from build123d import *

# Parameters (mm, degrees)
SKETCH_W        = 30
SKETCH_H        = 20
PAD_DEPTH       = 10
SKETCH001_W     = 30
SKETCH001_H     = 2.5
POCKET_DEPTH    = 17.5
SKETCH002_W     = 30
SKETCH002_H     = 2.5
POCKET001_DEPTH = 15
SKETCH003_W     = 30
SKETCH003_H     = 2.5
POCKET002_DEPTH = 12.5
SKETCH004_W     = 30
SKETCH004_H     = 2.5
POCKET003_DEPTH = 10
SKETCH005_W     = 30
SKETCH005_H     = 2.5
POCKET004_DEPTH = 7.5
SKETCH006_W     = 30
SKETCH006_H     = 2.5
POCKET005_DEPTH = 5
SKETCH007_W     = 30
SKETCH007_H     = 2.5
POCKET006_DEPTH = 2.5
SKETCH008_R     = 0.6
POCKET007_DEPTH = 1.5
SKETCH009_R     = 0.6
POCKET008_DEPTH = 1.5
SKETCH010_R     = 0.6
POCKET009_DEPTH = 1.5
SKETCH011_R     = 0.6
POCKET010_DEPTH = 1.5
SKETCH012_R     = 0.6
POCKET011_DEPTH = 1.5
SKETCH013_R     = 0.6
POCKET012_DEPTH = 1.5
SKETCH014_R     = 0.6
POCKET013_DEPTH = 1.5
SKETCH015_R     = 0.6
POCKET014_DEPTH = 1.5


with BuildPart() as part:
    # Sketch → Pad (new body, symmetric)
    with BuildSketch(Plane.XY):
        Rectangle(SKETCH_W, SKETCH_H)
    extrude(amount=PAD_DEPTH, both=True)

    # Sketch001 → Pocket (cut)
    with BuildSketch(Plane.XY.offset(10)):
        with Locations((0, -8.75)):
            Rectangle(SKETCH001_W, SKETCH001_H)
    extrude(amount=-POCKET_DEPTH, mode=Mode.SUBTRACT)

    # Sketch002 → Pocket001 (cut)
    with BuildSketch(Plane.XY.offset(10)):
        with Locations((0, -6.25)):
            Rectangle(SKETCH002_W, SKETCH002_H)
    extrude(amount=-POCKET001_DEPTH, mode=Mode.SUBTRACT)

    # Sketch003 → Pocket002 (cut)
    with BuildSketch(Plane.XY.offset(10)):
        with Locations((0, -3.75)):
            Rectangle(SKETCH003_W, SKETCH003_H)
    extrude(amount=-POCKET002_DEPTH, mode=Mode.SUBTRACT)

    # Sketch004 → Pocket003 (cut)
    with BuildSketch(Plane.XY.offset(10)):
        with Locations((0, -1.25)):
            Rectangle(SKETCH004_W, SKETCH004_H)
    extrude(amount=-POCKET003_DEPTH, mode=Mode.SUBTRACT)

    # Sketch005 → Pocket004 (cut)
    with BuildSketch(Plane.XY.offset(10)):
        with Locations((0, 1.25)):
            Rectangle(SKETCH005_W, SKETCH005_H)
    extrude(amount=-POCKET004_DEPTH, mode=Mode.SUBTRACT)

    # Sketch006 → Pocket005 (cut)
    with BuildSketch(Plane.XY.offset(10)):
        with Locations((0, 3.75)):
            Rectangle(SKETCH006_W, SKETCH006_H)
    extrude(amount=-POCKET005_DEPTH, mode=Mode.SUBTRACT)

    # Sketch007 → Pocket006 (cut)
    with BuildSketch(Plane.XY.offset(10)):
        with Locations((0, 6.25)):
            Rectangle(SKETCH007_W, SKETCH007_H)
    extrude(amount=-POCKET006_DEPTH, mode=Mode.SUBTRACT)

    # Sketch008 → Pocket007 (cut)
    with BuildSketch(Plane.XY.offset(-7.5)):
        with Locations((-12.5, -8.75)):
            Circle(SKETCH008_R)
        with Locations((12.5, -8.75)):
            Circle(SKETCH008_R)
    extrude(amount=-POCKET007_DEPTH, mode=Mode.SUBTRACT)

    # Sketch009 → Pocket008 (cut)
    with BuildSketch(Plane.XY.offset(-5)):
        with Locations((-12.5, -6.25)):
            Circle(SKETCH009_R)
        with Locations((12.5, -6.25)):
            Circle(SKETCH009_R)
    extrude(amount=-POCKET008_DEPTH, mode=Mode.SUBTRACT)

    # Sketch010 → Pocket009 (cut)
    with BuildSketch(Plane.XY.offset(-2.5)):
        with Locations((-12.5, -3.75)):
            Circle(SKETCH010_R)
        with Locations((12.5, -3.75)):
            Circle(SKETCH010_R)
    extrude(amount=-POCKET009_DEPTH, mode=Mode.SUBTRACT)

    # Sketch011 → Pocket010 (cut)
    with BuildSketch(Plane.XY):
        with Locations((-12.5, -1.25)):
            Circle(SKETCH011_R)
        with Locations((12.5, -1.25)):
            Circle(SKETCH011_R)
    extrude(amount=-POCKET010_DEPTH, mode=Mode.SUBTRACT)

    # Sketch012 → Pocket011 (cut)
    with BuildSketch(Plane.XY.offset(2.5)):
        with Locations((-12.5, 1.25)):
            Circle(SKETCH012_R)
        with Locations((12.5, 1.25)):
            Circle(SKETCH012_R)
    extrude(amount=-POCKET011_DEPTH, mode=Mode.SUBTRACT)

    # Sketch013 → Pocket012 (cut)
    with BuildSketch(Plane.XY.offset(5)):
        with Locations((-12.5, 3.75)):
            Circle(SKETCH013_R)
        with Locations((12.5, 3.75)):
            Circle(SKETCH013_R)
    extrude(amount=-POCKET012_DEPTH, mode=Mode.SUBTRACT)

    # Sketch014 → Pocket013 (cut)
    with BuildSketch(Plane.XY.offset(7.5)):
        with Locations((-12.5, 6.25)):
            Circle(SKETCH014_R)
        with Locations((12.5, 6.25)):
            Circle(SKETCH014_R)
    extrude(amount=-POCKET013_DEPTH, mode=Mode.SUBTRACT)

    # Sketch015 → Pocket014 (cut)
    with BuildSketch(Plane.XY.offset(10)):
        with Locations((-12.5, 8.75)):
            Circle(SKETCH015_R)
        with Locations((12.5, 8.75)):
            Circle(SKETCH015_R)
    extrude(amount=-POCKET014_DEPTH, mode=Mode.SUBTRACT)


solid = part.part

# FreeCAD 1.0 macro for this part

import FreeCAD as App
import Part
import Sketcher

V = App.Vector


def add_polygon(sketch, points):
    """Adds a closed chain of lines whose ends are joined by coincident constraints."""
    first, n = sketch.GeometryCount, len(points)
    for a, b in zip(points, points[1:] + points[:1]):
        sketch.addGeometry(Part.LineSegment(App.Vector(*a, 0), App.Vector(*b, 0)), False)
    for i in range(n):
        sketch.addConstraint(Sketcher.Constraint("Coincident", first + i, 2, first + (i + 1) % n, 1))

doc = App.newDocument("Part")
params = doc.addObject("Spreadsheet::Sheet", "Params")
for row, (alias, value) in enumerate([
    ("sketch1_width", "30 mm"),
    ("sketch1_height", "20 mm"),
    ("pad1_length", "20 mm"),
    ("sketch2_width", "30 mm"),
    ("sketch2_height", "2.5 mm"),
    ("pocket1_length", "17.5 mm"),
    ("sketch3_width", "30 mm"),
    ("sketch3_height", "2.5 mm"),
    ("pocket2_length", "15 mm"),
    ("sketch4_width", "30 mm"),
    ("sketch4_height", "2.5 mm"),
    ("pocket3_length", "12.5 mm"),
    ("sketch5_width", "30 mm"),
    ("sketch5_height", "2.5 mm"),
    ("pocket4_length", "10 mm"),
    ("sketch6_width", "30 mm"),
    ("sketch6_height", "2.5 mm"),
    ("pocket5_length", "7.5 mm"),
    ("sketch7_width", "30 mm"),
    ("sketch7_height", "2.5 mm"),
    ("pocket6_length", "5 mm"),
    ("sketch8_width", "30 mm"),
    ("sketch8_height", "2.5 mm"),
    ("pocket7_length", "2.5 mm"),
    ("sketch9_diameter", "1.2 mm"),
    ("pocket8_length", "1.5 mm"),
    ("sketch10_diameter", "1.2 mm"),
    ("pocket9_length", "1.5 mm"),
    ("sketch11_diameter", "1.2 mm"),
    ("pocket10_length", "1.5 mm"),
    ("sketch12_diameter", "1.2 mm"),
    ("pocket11_length", "1.5 mm"),
    ("sketch13_diameter", "1.2 mm"),
    ("pocket12_length", "1.5 mm"),
    ("sketch14_diameter", "1.2 mm"),
    ("pocket13_length", "1.5 mm"),
    ("sketch15_diameter", "1.2 mm"),
    ("pocket14_length", "1.5 mm"),
    ("sketch16_diameter", "1.2 mm"),
    ("pocket15_length", "1.5 mm"),
], start=1):
    params.set(f"A{row}", alias)
    params.set(f"B{row}", "=" + value)
    params.setAlias(f"B{row}", alias)

body = doc.addObject("PartDesign::Body", "Body")

# Sketch on XY plane
sketch1 = body.newObject("Sketcher::SketchObject", "Sketch")
sketch1.AttachmentSupport = (doc.getObject("XY_Plane"), [""])
sketch1.MapMode = "FlatFace"
add_polygon(sketch1, [(-15, 10), (-15, -10), (15, -10), (15, 10)])  # lines 0-3
sketch1.addConstraint(Sketcher.Constraint("Vertical", 0))
sketch1.addConstraint(Sketcher.Constraint("Horizontal", 1))
sketch1.addConstraint(Sketcher.Constraint("Vertical", 2))
sketch1.addConstraint(Sketcher.Constraint("Horizontal", 3))
sketch1.addConstraint(Sketcher.Constraint("Symmetric", 0, 2, 2, 2, -1, 1))
sketch1.addConstraint(Sketcher.Constraint("DistanceX", 1, 1, 1, 2, 30.0))
sketch1.addConstraint(Sketcher.Constraint("DistanceY", 0, 2, 0, 1, 20.0))
sketch1.setExpression("Constraints[9]", "Params.sketch1_width")
sketch1.setExpression("Constraints[10]", "Params.sketch1_height")
pad1 = body.newObject("PartDesign::Pad", "Pad")
pad1.Profile = sketch1
pad1.setExpression("Length", "Params.pad1_length")
pad1.Midplane = True

# Sketch on XY plane
sketch2 = body.newObject("Sketcher::SketchObject", "Sketch001")
sketch2.AttachmentSupport = (doc.getObject("XY_Plane"), [""])
sketch2.MapMode = "FlatFace"
sketch2.AttachmentOffset = App.Placement(V(0, 0, 10), App.Rotation())
add_polygon(sketch2, [(-15, -7.5), (-15, -10), (15, -10), (15, -7.5)])  # lines 0-3
sketch2.addConstraint(Sketcher.Constraint("Vertical", 0))
sketch2.addConstraint(Sketcher.Constraint("Horizontal", 1))
sketch2.addConstraint(Sketcher.Constraint("Vertical", 2))
sketch2.addConstraint(Sketcher.Constraint("Horizontal", 3))
sketch2.addConstraint(Sketcher.Constraint("DistanceX", 1, 1, 1, 2, 30.0))
sketch2.addConstraint(Sketcher.Constraint("DistanceY", 0, 2, 0, 1, 2.5))
sketch2.addConstraint(Sketcher.Constraint("DistanceX", 0, 2, -1, 1, 15.0))
sketch2.addConstraint(Sketcher.Constraint("DistanceY", 0, 2, -1, 1, 10.0))
sketch2.setExpression("Constraints[8]", "Params.sketch2_width")
sketch2.setExpression("Constraints[9]", "Params.sketch2_height")
pocket1 = body.newObject("PartDesign::Pocket", "Pocket")
pocket1.Profile = sketch2
pocket1.setExpression("Length", "Params.pocket1_length")

# Sketch on XY plane
sketch3 = body.newObject("Sketcher::SketchObject", "Sketch002")
sketch3.AttachmentSupport = (doc.getObject("XY_Plane"), [""])
sketch3.MapMode = "FlatFace"
sketch3.AttachmentOffset = App.Placement(V(0, 0, 10), App.Rotation())
add_polygon(sketch3, [(-15, -5), (-15, -7.5), (15, -7.5), (15, -5)])  # lines 0-3
sketch3.addConstraint(Sketcher.Constraint("Vertical", 0))
sketch3.addConstraint(Sketcher.Constraint("Horizontal", 1))
sketch3.addConstraint(Sketcher.Constraint("Vertical", 2))
sketch3.addConstraint(Sketcher.Constraint("Horizontal", 3))
sketch3.addConstraint(Sketcher.Constraint("DistanceX", 1, 1, 1, 2, 30.0))
sketch3.addConstraint(Sketcher.Constraint("DistanceY", 0, 2, 0, 1, 2.5))
sketch3.addConstraint(Sketcher.Constraint("DistanceX", 0, 2, -1, 1, 15.0))
sketch3.addConstraint(Sketcher.Constraint("DistanceY", 2, 2, -1, 1, 5.0))
sketch3.setExpression("Constraints[8]", "Params.sketch3_width")
sketch3.setExpression("Constraints[9]", "Params.sketch3_height")
pocket2 = body.newObject("PartDesign::Pocket", "Pocket001")
pocket2.Profile = sketch3
pocket2.setExpression("Length", "Params.pocket2_length")

# Sketch on XY plane
sketch4 = body.newObject("Sketcher::SketchObject", "Sketch003")
sketch4.AttachmentSupport = (doc.getObject("XY_Plane"), [""])
sketch4.MapMode = "FlatFace"
sketch4.AttachmentOffset = App.Placement(V(0, 0, 10), App.Rotation())
add_polygon(sketch4, [(-15, -2.5), (-15, -5), (15, -5), (15, -2.5)])  # lines 0-3
sketch4.addConstraint(Sketcher.Constraint("Vertical", 0))
sketch4.addConstraint(Sketcher.Constraint("Horizontal", 1))
sketch4.addConstraint(Sketcher.Constraint("Vertical", 2))
sketch4.addConstraint(Sketcher.Constraint("Horizontal", 3))
sketch4.addConstraint(Sketcher.Constraint("DistanceX", 1, 1, 1, 2, 30.0))
sketch4.addConstraint(Sketcher.Constraint("DistanceY", 0, 2, 0, 1, 2.5))
sketch4.addConstraint(Sketcher.Constraint("DistanceX", 0, 2, -1, 1, 15.0))
sketch4.addConstraint(Sketcher.Constraint("DistanceY", 0, 2, -1, 1, 5.0))
sketch4.setExpression("Constraints[8]", "Params.sketch4_width")
sketch4.setExpression("Constraints[9]", "Params.sketch4_height")
pocket3 = body.newObject("PartDesign::Pocket", "Pocket002")
pocket3.Profile = sketch4
pocket3.setExpression("Length", "Params.pocket3_length")

# Sketch on XY plane
sketch5 = body.newObject("Sketcher::SketchObject", "Sketch004")
sketch5.AttachmentSupport = (doc.getObject("XY_Plane"), [""])
sketch5.MapMode = "FlatFace"
sketch5.AttachmentOffset = App.Placement(V(0, 0, 10), App.Rotation())
add_polygon(sketch5, [(-15, 0), (-15, -2.5), (15, -2.5), (15, 0)])  # lines 0-3
sketch5.addConstraint(Sketcher.Constraint("Vertical", 0))
sketch5.addConstraint(Sketcher.Constraint("Horizontal", 1))
sketch5.addConstraint(Sketcher.Constraint("Vertical", 2))
sketch5.addConstraint(Sketcher.Constraint("Horizontal", 3))
sketch5.addConstraint(Sketcher.Constraint("Symmetric", 2, 2, 3, 2, -1, 1))
sketch5.addConstraint(Sketcher.Constraint("DistanceX", 1, 1, 1, 2, 30.0))
sketch5.addConstraint(Sketcher.Constraint("DistanceY", 0, 2, 0, 1, 2.5))
sketch5.setExpression("Constraints[9]", "Params.sketch5_width")
sketch5.setExpression("Constraints[10]", "Params.sketch5_height")
pocket4 = body.newObject("PartDesign::Pocket", "Pocket003")
pocket4.Profile = sketch5
pocket4.setExpression("Length", "Params.pocket4_length")

# Sketch on XY plane
sketch6 = body.newObject("Sketcher::SketchObject", "Sketch005")
sketch6.AttachmentSupport = (doc.getObject("XY_Plane"), [""])
sketch6.MapMode = "FlatFace"
sketch6.AttachmentOffset = App.Placement(V(0, 0, 10), App.Rotation())
add_polygon(sketch6, [(-15, 2.5), (-15, 0), (15, 0), (15, 2.5)])  # lines 0-3
sketch6.addConstraint(Sketcher.Constraint("Vertical", 0))
sketch6.addConstraint(Sketcher.Constraint("Horizontal", 1))
sketch6.addConstraint(Sketcher.Constraint("Vertical", 2))
sketch6.addConstraint(Sketcher.Constraint("Horizontal", 3))
sketch6.addConstraint(Sketcher.Constraint("Symmetric", 0, 2, 1, 2, -1, 1))
sketch6.addConstraint(Sketcher.Constraint("DistanceX", 1, 1, 1, 2, 30.0))
sketch6.addConstraint(Sketcher.Constraint("DistanceY", 0, 2, 0, 1, 2.5))
sketch6.setExpression("Constraints[9]", "Params.sketch6_width")
sketch6.setExpression("Constraints[10]", "Params.sketch6_height")
pocket5 = body.newObject("PartDesign::Pocket", "Pocket004")
pocket5.Profile = sketch6
pocket5.setExpression("Length", "Params.pocket5_length")

# Sketch on XY plane
sketch7 = body.newObject("Sketcher::SketchObject", "Sketch006")
sketch7.AttachmentSupport = (doc.getObject("XY_Plane"), [""])
sketch7.MapMode = "FlatFace"
sketch7.AttachmentOffset = App.Placement(V(0, 0, 10), App.Rotation())
add_polygon(sketch7, [(-15, 5), (-15, 2.5), (15, 2.5), (15, 5)])  # lines 0-3
sketch7.addConstraint(Sketcher.Constraint("Vertical", 0))
sketch7.addConstraint(Sketcher.Constraint("Horizontal", 1))
sketch7.addConstraint(Sketcher.Constraint("Vertical", 2))
sketch7.addConstraint(Sketcher.Constraint("Horizontal", 3))
sketch7.addConstraint(Sketcher.Constraint("DistanceX", 1, 1, 1, 2, 30.0))
sketch7.addConstraint(Sketcher.Constraint("DistanceY", 0, 2, 0, 1, 2.5))
sketch7.addConstraint(Sketcher.Constraint("DistanceX", 0, 2, -1, 1, 15.0))
sketch7.addConstraint(Sketcher.Constraint("DistanceY", -1, 1, 2, 2, 5.0))
sketch7.setExpression("Constraints[8]", "Params.sketch7_width")
sketch7.setExpression("Constraints[9]", "Params.sketch7_height")
pocket6 = body.newObject("PartDesign::Pocket", "Pocket005")
pocket6.Profile = sketch7
pocket6.setExpression("Length", "Params.pocket6_length")

# Sketch on XY plane
sketch8 = body.newObject("Sketcher::SketchObject", "Sketch007")
sketch8.AttachmentSupport = (doc.getObject("XY_Plane"), [""])
sketch8.MapMode = "FlatFace"
sketch8.AttachmentOffset = App.Placement(V(0, 0, 10), App.Rotation())
add_polygon(sketch8, [(-15, 7.5), (-15, 5), (15, 5), (15, 7.5)])  # lines 0-3
sketch8.addConstraint(Sketcher.Constraint("Vertical", 0))
sketch8.addConstraint(Sketcher.Constraint("Horizontal", 1))
sketch8.addConstraint(Sketcher.Constraint("Vertical", 2))
sketch8.addConstraint(Sketcher.Constraint("Horizontal", 3))
sketch8.addConstraint(Sketcher.Constraint("DistanceX", 1, 1, 1, 2, 30.0))
sketch8.addConstraint(Sketcher.Constraint("DistanceY", 0, 2, 0, 1, 2.5))
sketch8.addConstraint(Sketcher.Constraint("DistanceX", 0, 2, -1, 1, 15.0))
sketch8.addConstraint(Sketcher.Constraint("DistanceY", -1, 1, 0, 2, 5.0))
sketch8.setExpression("Constraints[8]", "Params.sketch8_width")
sketch8.setExpression("Constraints[9]", "Params.sketch8_height")
pocket7 = body.newObject("PartDesign::Pocket", "Pocket006")
pocket7.Profile = sketch8
pocket7.setExpression("Length", "Params.pocket7_length")

# Sketch on XY plane
sketch9 = body.newObject("Sketcher::SketchObject", "Sketch008")
sketch9.AttachmentSupport = (doc.getObject("XY_Plane"), [""])
sketch9.MapMode = "FlatFace"
sketch9.AttachmentOffset = App.Placement(V(0, 0, -7.5), App.Rotation())
sketch9.addGeometry(Part.Circle(V(-12.5, -8.8, 0), V(0, 0, 1), 0.6), False)
sketch9.addGeometry(Part.Circle(V(12.5, -8.8, 0), V(0, 0, 1), 0.6), False)
sketch9.addConstraint(Sketcher.Constraint("Equal", 0, 1))
sketch9.addConstraint(Sketcher.Constraint("Symmetric", 0, 3, 1, 3, -2))
sketch9.addConstraint(Sketcher.Constraint("Diameter", 0, 1.2))
sketch9.addConstraint(Sketcher.Constraint("DistanceX", 0, 3, 1, 3, 25.0))
sketch9.addConstraint(Sketcher.Constraint("DistanceY", 0, 3, -1, 1, 8.75))
sketch9.setExpression("Constraints[2]", "Params.sketch9_diameter")
pocket8 = body.newObject("PartDesign::Pocket", "Pocket007")
pocket8.Profile = sketch9
pocket8.setExpression("Length", "Params.pocket8_length")

# Sketch on XY plane
sketch10 = body.newObject("Sketcher::SketchObject", "Sketch009")
sketch10.AttachmentSupport = (doc.getObject("XY_Plane"), [""])
sketch10.MapMode = "FlatFace"
sketch10.AttachmentOffset = App.Placement(V(0, 0, -5), App.Rotation())
sketch10.addGeometry(Part.Circle(V(-12.5, -6.2, 0), V(0, 0, 1), 0.6), False)
sketch10.addGeometry(Part.Circle(V(12.5, -6.2, 0), V(0, 0, 1), 0.6), False)
sketch10.addConstraint(Sketcher.Constraint("Equal", 0, 1))
sketch10.addConstraint(Sketcher.Constraint("Symmetric", 0, 3, 1, 3, -2))
sketch10.addConstraint(Sketcher.Constraint("Diameter", 0, 1.2))
sketch10.addConstraint(Sketcher.Constraint("DistanceX", 0, 3, 1, 3, 25.0))
sketch10.addConstraint(Sketcher.Constraint("DistanceY", 0, 3, -1, 1, 6.25))
sketch10.setExpression("Constraints[2]", "Params.sketch10_diameter")
pocket9 = body.newObject("PartDesign::Pocket", "Pocket008")
pocket9.Profile = sketch10
pocket9.setExpression("Length", "Params.pocket9_length")

# Sketch on XY plane
sketch11 = body.newObject("Sketcher::SketchObject", "Sketch010")
sketch11.AttachmentSupport = (doc.getObject("XY_Plane"), [""])
sketch11.MapMode = "FlatFace"
sketch11.AttachmentOffset = App.Placement(V(0, 0, -2.5), App.Rotation())
sketch11.addGeometry(Part.Circle(V(-12.5, -3.8, 0), V(0, 0, 1), 0.6), False)
sketch11.addGeometry(Part.Circle(V(12.5, -3.8, 0), V(0, 0, 1), 0.6), False)
sketch11.addConstraint(Sketcher.Constraint("Equal", 0, 1))
sketch11.addConstraint(Sketcher.Constraint("Symmetric", 0, 3, 1, 3, -2))
sketch11.addConstraint(Sketcher.Constraint("Diameter", 0, 1.2))
sketch11.addConstraint(Sketcher.Constraint("DistanceX", 0, 3, 1, 3, 25.0))
sketch11.addConstraint(Sketcher.Constraint("DistanceY", 0, 3, -1, 1, 3.75))
sketch11.setExpression("Constraints[2]", "Params.sketch11_diameter")
pocket10 = body.newObject("PartDesign::Pocket", "Pocket009")
pocket10.Profile = sketch11
pocket10.setExpression("Length", "Params.pocket10_length")

# Sketch on XY plane
sketch12 = body.newObject("Sketcher::SketchObject", "Sketch011")
sketch12.AttachmentSupport = (doc.getObject("XY_Plane"), [""])
sketch12.MapMode = "FlatFace"
sketch12.addGeometry(Part.Circle(V(-12.5, -1.2, 0), V(0, 0, 1), 0.6), False)
sketch12.addGeometry(Part.Circle(V(12.5, -1.2, 0), V(0, 0, 1), 0.6), False)
sketch12.addConstraint(Sketcher.Constraint("Equal", 0, 1))
sketch12.addConstraint(Sketcher.Constraint("Symmetric", 0, 3, 1, 3, -2))
sketch12.addConstraint(Sketcher.Constraint("Diameter", 0, 1.2))
sketch12.addConstraint(Sketcher.Constraint("DistanceX", 0, 3, 1, 3, 25.0))
sketch12.addConstraint(Sketcher.Constraint("DistanceY", 0, 3, -1, 1, 1.25))
sketch12.setExpression("Constraints[2]", "Params.sketch12_diameter")
pocket11 = body.newObject("PartDesign::Pocket", "Pocket010")
pocket11.Profile = sketch12
pocket11.setExpression("Length", "Params.pocket11_length")

# Sketch on XY plane
sketch13 = body.newObject("Sketcher::SketchObject", "Sketch012")
sketch13.AttachmentSupport = (doc.getObject("XY_Plane"), [""])
sketch13.MapMode = "FlatFace"
sketch13.AttachmentOffset = App.Placement(V(0, 0, 2.5), App.Rotation())
sketch13.addGeometry(Part.Circle(V(-12.5, 1.2, 0), V(0, 0, 1), 0.6), False)
sketch13.addGeometry(Part.Circle(V(12.5, 1.2, 0), V(0, 0, 1), 0.6), False)
sketch13.addConstraint(Sketcher.Constraint("Equal", 0, 1))
sketch13.addConstraint(Sketcher.Constraint("Symmetric", 0, 3, 1, 3, -2))
sketch13.addConstraint(Sketcher.Constraint("Diameter", 0, 1.2))
sketch13.addConstraint(Sketcher.Constraint("DistanceX", 0, 3, 1, 3, 25.0))
sketch13.addConstraint(Sketcher.Constraint("DistanceY", -1, 1, 0, 3, 1.25))
sketch13.setExpression("Constraints[2]", "Params.sketch13_diameter")
pocket12 = body.newObject("PartDesign::Pocket", "Pocket011")
pocket12.Profile = sketch13
pocket12.setExpression("Length", "Params.pocket12_length")

# Sketch on XY plane
sketch14 = body.newObject("Sketcher::SketchObject", "Sketch013")
sketch14.AttachmentSupport = (doc.getObject("XY_Plane"), [""])
sketch14.MapMode = "FlatFace"
sketch14.AttachmentOffset = App.Placement(V(0, 0, 5), App.Rotation())
sketch14.addGeometry(Part.Circle(V(-12.5, 3.8, 0), V(0, 0, 1), 0.6), False)
sketch14.addGeometry(Part.Circle(V(12.5, 3.8, 0), V(0, 0, 1), 0.6), False)
sketch14.addConstraint(Sketcher.Constraint("Equal", 0, 1))
sketch14.addConstraint(Sketcher.Constraint("Symmetric", 0, 3, 1, 3, -2))
sketch14.addConstraint(Sketcher.Constraint("Diameter", 0, 1.2))
sketch14.addConstraint(Sketcher.Constraint("DistanceX", 0, 3, 1, 3, 25.0))
sketch14.addConstraint(Sketcher.Constraint("DistanceY", -1, 1, 0, 3, 3.75))
sketch14.setExpression("Constraints[2]", "Params.sketch14_diameter")
pocket13 = body.newObject("PartDesign::Pocket", "Pocket012")
pocket13.Profile = sketch14
pocket13.setExpression("Length", "Params.pocket13_length")

# Sketch on XY plane
sketch15 = body.newObject("Sketcher::SketchObject", "Sketch014")
sketch15.AttachmentSupport = (doc.getObject("XY_Plane"), [""])
sketch15.MapMode = "FlatFace"
sketch15.AttachmentOffset = App.Placement(V(0, 0, 7.5), App.Rotation())
sketch15.addGeometry(Part.Circle(V(-12.5, 6.2, 0), V(0, 0, 1), 0.6), False)
sketch15.addGeometry(Part.Circle(V(12.5, 6.2, 0), V(0, 0, 1), 0.6), False)
sketch15.addConstraint(Sketcher.Constraint("Equal", 0, 1))
sketch15.addConstraint(Sketcher.Constraint("Symmetric", 0, 3, 1, 3, -2))
sketch15.addConstraint(Sketcher.Constraint("Diameter", 0, 1.2))
sketch15.addConstraint(Sketcher.Constraint("DistanceX", 0, 3, 1, 3, 25.0))
sketch15.addConstraint(Sketcher.Constraint("DistanceY", -1, 1, 0, 3, 6.25))
sketch15.setExpression("Constraints[2]", "Params.sketch15_diameter")
pocket14 = body.newObject("PartDesign::Pocket", "Pocket013")
pocket14.Profile = sketch15
pocket14.setExpression("Length", "Params.pocket14_length")

# Sketch on XY plane
sketch16 = body.newObject("Sketcher::SketchObject", "Sketch015")
sketch16.AttachmentSupport = (doc.getObject("XY_Plane"), [""])
sketch16.MapMode = "FlatFace"
sketch16.AttachmentOffset = App.Placement(V(0, 0, 10), App.Rotation())
sketch16.addGeometry(Part.Circle(V(-12.5, 8.8, 0), V(0, 0, 1), 0.6), False)
sketch16.addGeometry(Part.Circle(V(12.5, 8.8, 0), V(0, 0, 1), 0.6), False)
sketch16.addConstraint(Sketcher.Constraint("Equal", 0, 1))
sketch16.addConstraint(Sketcher.Constraint("Symmetric", 0, 3, 1, 3, -2))
sketch16.addConstraint(Sketcher.Constraint("Diameter", 0, 1.2))
sketch16.addConstraint(Sketcher.Constraint("DistanceX", 0, 3, 1, 3, 25.0))
sketch16.addConstraint(Sketcher.Constraint("DistanceY", -1, 1, 0, 3, 8.75))
sketch16.setExpression("Constraints[2]", "Params.sketch16_diameter")
pocket15 = body.newObject("PartDesign::Pocket", "Pocket014")
pocket15.Profile = sketch16
pocket15.setExpression("Length", "Params.pocket15_length")

doc.recompute()
